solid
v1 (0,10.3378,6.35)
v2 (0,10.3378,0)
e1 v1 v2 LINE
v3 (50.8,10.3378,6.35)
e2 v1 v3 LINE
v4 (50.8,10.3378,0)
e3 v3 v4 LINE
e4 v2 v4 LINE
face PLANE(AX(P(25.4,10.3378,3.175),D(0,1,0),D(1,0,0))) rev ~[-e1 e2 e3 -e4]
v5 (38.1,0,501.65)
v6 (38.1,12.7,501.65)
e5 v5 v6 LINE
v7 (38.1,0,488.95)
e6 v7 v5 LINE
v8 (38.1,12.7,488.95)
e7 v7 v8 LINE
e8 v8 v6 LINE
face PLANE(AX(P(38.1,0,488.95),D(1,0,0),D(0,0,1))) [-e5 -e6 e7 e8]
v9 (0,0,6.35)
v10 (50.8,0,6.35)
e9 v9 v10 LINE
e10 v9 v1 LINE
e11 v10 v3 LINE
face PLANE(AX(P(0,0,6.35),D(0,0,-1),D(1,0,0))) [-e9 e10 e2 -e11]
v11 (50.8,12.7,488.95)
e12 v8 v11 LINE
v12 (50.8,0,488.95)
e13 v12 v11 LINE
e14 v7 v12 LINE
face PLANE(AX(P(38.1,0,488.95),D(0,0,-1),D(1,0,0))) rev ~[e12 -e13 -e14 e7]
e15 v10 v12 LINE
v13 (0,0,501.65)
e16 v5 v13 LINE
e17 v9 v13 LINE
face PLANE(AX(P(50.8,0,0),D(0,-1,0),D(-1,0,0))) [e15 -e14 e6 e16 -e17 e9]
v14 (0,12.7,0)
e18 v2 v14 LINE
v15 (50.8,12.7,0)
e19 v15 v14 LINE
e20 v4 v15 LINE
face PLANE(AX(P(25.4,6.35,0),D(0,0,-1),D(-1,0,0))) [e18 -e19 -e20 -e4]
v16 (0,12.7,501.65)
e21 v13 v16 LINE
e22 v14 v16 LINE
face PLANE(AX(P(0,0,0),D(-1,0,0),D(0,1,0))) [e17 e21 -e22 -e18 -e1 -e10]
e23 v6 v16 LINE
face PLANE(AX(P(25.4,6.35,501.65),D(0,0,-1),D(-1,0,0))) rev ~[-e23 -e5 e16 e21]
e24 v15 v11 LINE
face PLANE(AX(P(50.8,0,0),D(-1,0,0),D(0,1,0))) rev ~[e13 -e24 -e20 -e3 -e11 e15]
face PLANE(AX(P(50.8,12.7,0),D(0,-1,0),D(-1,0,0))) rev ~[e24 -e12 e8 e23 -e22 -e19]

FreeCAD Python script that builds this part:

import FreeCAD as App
import Part
import Sketcher
Q = App.Units.Quantity

doc = App.newDocument("Part")
params = doc.addObject("Spreadsheet::Sheet", "Params")
for row, (alias, value) in enumerate([
    ("sketch1_width", "2 in"),
    ("sketch1_height", "0.5 in"),
    ("pad1_length", "19.75 in"),
    ("sketch2_width", "2 in"),
    ("sketch2_height", "0.25 in"),
    ("pocket1_length", "0.407 in"),
    ("sketch3_width", "0.5 in"),
], start=1):
    params.set(f"A{row}", alias)
    params.set(f"B{row}", "=" + value)
    params.setAlias(f"B{row}", alias)

body = doc.addObject("PartDesign::Body", "Body")

sketch1 = body.newObject("Sketcher::SketchObject", "Sketch")
sketch1.AttachmentSupport = (doc.getObject("XY_Plane"), [""])
sketch1.MapMode = "FlatFace"
sketch1.addGeometry([
    Part.LineSegment(App.Vector(51, 13, 0), App.Vector(0, 13, 0)),
    Part.LineSegment(App.Vector(0, 13, 0), App.Vector(0, 0, 0)),
    Part.LineSegment(App.Vector(0, 0, 0), App.Vector(51, 0, 0)),
    Part.LineSegment(App.Vector(51, 0, 0), App.Vector(51, 13, 0)),
], False)
sketch1.addConstraint([
    Sketcher.Constraint("Coincident", 0, 2, 1, 1),
    Sketcher.Constraint("Coincident", 1, 2, 2, 1),
    Sketcher.Constraint("Coincident", 2, 2, 3, 1),
    Sketcher.Constraint("Coincident", 3, 2, 0, 1),
    Sketcher.Constraint("Horizontal", 0),
    Sketcher.Constraint("Vertical", 1),
    Sketcher.Constraint("Horizontal", 2),
    Sketcher.Constraint("Vertical", 3),
    Sketcher.Constraint("Coincident", 1, 2, -1, 1),
    Sketcher.Constraint("DistanceX", 0, 2, 0, 1, Q("2 in")),
    Sketcher.Constraint("DistanceY", 1, 2, 1, 1, Q("0.5 in")),
])
sketch1.setExpression("Constraints[9]", "Params.sketch1_width")
sketch1.setExpression("Constraints[10]", "Params.sketch1_height")
pad1 = body.newObject("PartDesign::Pad", "Pad")
pad1.Profile = sketch1
pad1.setExpression("Length", "Params.pad1_length")

sketch2 = body.newObject("Sketcher::SketchObject", "Sketch001")
sketch2.AttachmentSupport = (doc.getObject("XZ_Plane"), [""])
sketch2.MapMode = "FlatFace"
sketch2.addGeometry([
    Part.LineSegment(App.Vector(0, 0, 0), App.Vector(0, 6, 0)),
    Part.LineSegment(App.Vector(0, 6, 0), App.Vector(51, 6, 0)),
    Part.LineSegment(App.Vector(51, 6, 0), App.Vector(51, 0, 0)),
    Part.LineSegment(App.Vector(51, 0, 0), App.Vector(0, 0, 0)),
], False)
sketch2.addConstraint([
    Sketcher.Constraint("Coincident", 0, 2, 1, 1),
    Sketcher.Constraint("Coincident", 1, 2, 2, 1),
    Sketcher.Constraint("Coincident", 2, 2, 3, 1),
    Sketcher.Constraint("Coincident", 3, 2, 0, 1),
    Sketcher.Constraint("Vertical", 0),
    Sketcher.Constraint("Horizontal", 1),
    Sketcher.Constraint("Vertical", 2),
    Sketcher.Constraint("Horizontal", 3),
    Sketcher.Constraint("Coincident", 3, 2, -1, 1),
    Sketcher.Constraint("DistanceX", 1, 1, 1, 2, Q("2 in")),
    Sketcher.Constraint("DistanceY", 0, 1, 0, 2, Q("0.25 in")),
])
sketch2.setExpression("Constraints[9]", "Params.sketch2_width")
sketch2.setExpression("Constraints[10]", "Params.sketch2_height")
pocket1 = body.newObject("PartDesign::Pocket", "Pocket")
pocket1.Profile = sketch2
pocket1.setExpression("Length", "Params.pocket1_length")

sketch3 = body.newObject("Sketcher::SketchObject", "Sketch002")
sketch3.AttachmentSupport = (doc.getObject("XZ_Plane"), [""])
sketch3.MapMode = "FlatFace"
sketch3.addGeometry([
    Part.LineSegment(App.Vector(38, 502, 0), App.Vector(38, 489, 0)),
    Part.LineSegment(App.Vector(38, 489, 0), App.Vector(51, 489, 0)),
    Part.LineSegment(App.Vector(51, 489, 0), App.Vector(51, 502, 0)),
    Part.LineSegment(App.Vector(51, 502, 0), App.Vector(38, 502, 0)),
], False)
sketch3.addConstraint([
    Sketcher.Constraint("Coincident", 0, 2, 1, 1),
    Sketcher.Constraint("Coincident", 1, 2, 2, 1),
    Sketcher.Constraint("Coincident", 2, 2, 3, 1),
    Sketcher.Constraint("Coincident", 3, 2, 0, 1),
    Sketcher.Constraint("Vertical", 0),
    Sketcher.Constraint("Horizontal", 1),
    Sketcher.Constraint("Vertical", 2),
    Sketcher.Constraint("Horizontal", 3),
    Sketcher.Constraint("Equal", 3, 0),
    Sketcher.Constraint("DistanceX", 1, 1, 1, 2, Q("0.5 in")),
    Sketcher.Constraint("DistanceX", -1, 1, 1, 2, Q("2 in")),
    Sketcher.Constraint("DistanceY", -1, 1, 0, 2, Q("19.25 in")),
])
sketch3.setExpression("Constraints[9]", "Params.sketch3_width")
pocket2 = body.newObject("PartDesign::Pocket", "Pocket001")
pocket2.Profile = sketch3
pocket2.Type = "ThroughAll"

doc.recompute()
